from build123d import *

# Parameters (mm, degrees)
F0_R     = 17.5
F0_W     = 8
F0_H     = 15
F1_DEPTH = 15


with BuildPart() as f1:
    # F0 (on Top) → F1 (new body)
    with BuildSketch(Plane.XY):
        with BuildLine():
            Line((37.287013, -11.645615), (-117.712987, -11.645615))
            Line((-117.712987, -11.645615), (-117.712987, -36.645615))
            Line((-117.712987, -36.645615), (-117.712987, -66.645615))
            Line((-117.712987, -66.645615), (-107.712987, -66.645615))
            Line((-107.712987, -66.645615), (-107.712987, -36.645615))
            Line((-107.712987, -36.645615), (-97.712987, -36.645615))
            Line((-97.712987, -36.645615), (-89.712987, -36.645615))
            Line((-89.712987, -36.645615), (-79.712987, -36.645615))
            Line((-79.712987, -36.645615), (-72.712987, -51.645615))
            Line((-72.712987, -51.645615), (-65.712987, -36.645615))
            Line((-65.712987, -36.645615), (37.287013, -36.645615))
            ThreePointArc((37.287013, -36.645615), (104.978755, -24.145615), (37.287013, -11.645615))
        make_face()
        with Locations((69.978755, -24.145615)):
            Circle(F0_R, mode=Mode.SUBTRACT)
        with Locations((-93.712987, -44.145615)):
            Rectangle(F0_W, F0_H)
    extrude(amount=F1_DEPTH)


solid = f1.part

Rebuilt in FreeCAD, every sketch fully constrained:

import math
import FreeCAD as App
import Part
import Sketcher
from FreeCAD import Vector

doc = App.newDocument("Part")
body = doc.addObject("PartDesign::Body", "Body")

# Sketch on XY plane
sketch1 = body.newObject("Sketcher::SketchObject", "Sketch")
sketch1.AttachmentSupport = (doc.getObject("XY_Plane"), [""])
sketch1.MapMode = "FlatFace"
sketch1.addGeometry(Part.LineSegment(Vector(37, -12, 0), Vector(-118, -12, 0)), False)
sketch1.addGeometry(Part.LineSegment(Vector(-118, -12, 0), Vector(-118, -67, 0)), False)
sketch1.addGeometry(Part.LineSegment(Vector(-118, -67, 0), Vector(-108, -67, 0)), False)
sketch1.addGeometry(Part.LineSegment(Vector(-108, -67, 0), Vector(-108, -37, 0)), False)
sketch1.addGeometry(Part.LineSegment(Vector(-108, -37, 0), Vector(-98, -37, 0)), False)
sketch1.addGeometry(Part.LineSegment(Vector(-98, -37, 0), Vector(-98, -52, 0)), False)
sketch1.addGeometry(Part.LineSegment(Vector(-98, -52, 0), Vector(-90, -52, 0)), False)
sketch1.addGeometry(Part.LineSegment(Vector(-90, -52, 0), Vector(-90, -37, 0)), False)
sketch1.addGeometry(Part.LineSegment(Vector(-90, -37, 0), Vector(-80, -37, 0)), False)
sketch1.addGeometry(Part.LineSegment(Vector(-80, -37, 0), Vector(-73, -52, 0)), False)
sketch1.addGeometry(Part.LineSegment(Vector(-73, -52, 0), Vector(-66, -37, 0)), False)
sketch1.addGeometry(Part.LineSegment(Vector(-66, -37, 0), Vector(37, -37, 0)), False)
sketch1.addGeometry(Part.ArcOfCircle(Part.Circle(Vector(70, -24, 0), Vector(0, 0, 1), 35), math.radians(-159), math.radians(159)), False)
sketch1.addGeometry(Part.Circle(Vector(70, -24, 0), Vector(0, 0, 1), 18), False)
sketch1.addConstraint(Sketcher.Constraint("Coincident", 0, 2, 1, 1))
sketch1.addConstraint(Sketcher.Constraint("Coincident", 1, 2, 2, 1))
sketch1.addConstraint(Sketcher.Constraint("Coincident", 2, 2, 3, 1))
sketch1.addConstraint(Sketcher.Constraint("Coincident", 3, 2, 4, 1))
sketch1.addConstraint(Sketcher.Constraint("Coincident", 4, 2, 5, 1))
sketch1.addConstraint(Sketcher.Constraint("Coincident", 5, 2, 6, 1))
sketch1.addConstraint(Sketcher.Constraint("Coincident", 6, 2, 7, 1))
sketch1.addConstraint(Sketcher.Constraint("Coincident", 7, 2, 8, 1))
sketch1.addConstraint(Sketcher.Constraint("Coincident", 8, 2, 9, 1))
sketch1.addConstraint(Sketcher.Constraint("Coincident", 9, 2, 10, 1))
sketch1.addConstraint(Sketcher.Constraint("Coincident", 10, 2, 11, 1))
sketch1.addConstraint(Sketcher.Constraint("Coincident", 11, 2, 12, 1))
sketch1.addConstraint(Sketcher.Constraint("Coincident", 12, 2, 0, 1))
sketch1.addConstraint(Sketcher.Constraint("Horizontal", 0))
sketch1.addConstraint(Sketcher.Constraint("Vertical", 1))
sketch1.addConstraint(Sketcher.Constraint("Horizontal", 2))
sketch1.addConstraint(Sketcher.Constraint("Vertical", 3))
sketch1.addConstraint(Sketcher.Constraint("Horizontal", 4))
sketch1.addConstraint(Sketcher.Constraint("Vertical", 5))
sketch1.addConstraint(Sketcher.Constraint("Horizontal", 6))
sketch1.addConstraint(Sketcher.Constraint("Vertical", 7))
sketch1.addConstraint(Sketcher.Constraint("Horizontal", 8))
sketch1.addConstraint(Sketcher.Constraint("Horizontal", 11))
sketch1.addConstraint(Sketcher.Constraint("Coincident", 13, 3, 12, 3))
sketch1.addConstraint(Sketcher.Constraint("Horizontal", 4, 2, 7, 2))
sketch1.addConstraint(Sketcher.Constraint("Horizontal", 6, 2, 9, 2))
sketch1.addConstraint(Sketcher.Constraint("Horizontal", 8, 2, 10, 2))
sketch1.addConstraint(Sketcher.Constraint("Vertical", 11, 2, 12, 2))
sketch1.addConstraint(Sketcher.Constraint("Equal", 2, 4))
sketch1.addConstraint(Sketcher.Constraint("Equal", 4, 8))
sketch1.addConstraint(Sketcher.Constraint("Equal", 9, 10))
sketch1.addConstraint(Sketcher.Constraint("Diameter", 13, 35.0))
sketch1.addConstraint(Sketcher.Constraint("Radius", 12, 35.0))
sketch1.addConstraint(Sketcher.Constraint("DistanceX", 0, 2, 0, 1, 155.0))
sketch1.addConstraint(Sketcher.Constraint("DistanceX", 2, 1, 2, 2, 10.0))
sketch1.addConstraint(Sketcher.Constraint("DistanceX", 6, 1, 6, 2, 8.0))
sketch1.addConstraint(Sketcher.Constraint("DistanceX", 11, 1, 11, 2, 103.0))
sketch1.addConstraint(Sketcher.Constraint("DistanceY", 1, 2, 1, 1, 55.0))
sketch1.addConstraint(Sketcher.Constraint("DistanceY", 3, 1, 3, 2, 30.0))
sketch1.addConstraint(Sketcher.Constraint("DistanceY", 5, 2, 5, 1, 15.0))
sketch1.addConstraint(Sketcher.Constraint("DistanceX", -1, 1, 12, 3, 69.978755))
sketch1.addConstraint(Sketcher.Constraint("DistanceY", 12, 3, -1, 1, 24.145615))
pad1 = body.newObject("PartDesign::Pad", "Pad")
pad1.Profile = sketch1
pad1.Length = 15

doc.recompute()
